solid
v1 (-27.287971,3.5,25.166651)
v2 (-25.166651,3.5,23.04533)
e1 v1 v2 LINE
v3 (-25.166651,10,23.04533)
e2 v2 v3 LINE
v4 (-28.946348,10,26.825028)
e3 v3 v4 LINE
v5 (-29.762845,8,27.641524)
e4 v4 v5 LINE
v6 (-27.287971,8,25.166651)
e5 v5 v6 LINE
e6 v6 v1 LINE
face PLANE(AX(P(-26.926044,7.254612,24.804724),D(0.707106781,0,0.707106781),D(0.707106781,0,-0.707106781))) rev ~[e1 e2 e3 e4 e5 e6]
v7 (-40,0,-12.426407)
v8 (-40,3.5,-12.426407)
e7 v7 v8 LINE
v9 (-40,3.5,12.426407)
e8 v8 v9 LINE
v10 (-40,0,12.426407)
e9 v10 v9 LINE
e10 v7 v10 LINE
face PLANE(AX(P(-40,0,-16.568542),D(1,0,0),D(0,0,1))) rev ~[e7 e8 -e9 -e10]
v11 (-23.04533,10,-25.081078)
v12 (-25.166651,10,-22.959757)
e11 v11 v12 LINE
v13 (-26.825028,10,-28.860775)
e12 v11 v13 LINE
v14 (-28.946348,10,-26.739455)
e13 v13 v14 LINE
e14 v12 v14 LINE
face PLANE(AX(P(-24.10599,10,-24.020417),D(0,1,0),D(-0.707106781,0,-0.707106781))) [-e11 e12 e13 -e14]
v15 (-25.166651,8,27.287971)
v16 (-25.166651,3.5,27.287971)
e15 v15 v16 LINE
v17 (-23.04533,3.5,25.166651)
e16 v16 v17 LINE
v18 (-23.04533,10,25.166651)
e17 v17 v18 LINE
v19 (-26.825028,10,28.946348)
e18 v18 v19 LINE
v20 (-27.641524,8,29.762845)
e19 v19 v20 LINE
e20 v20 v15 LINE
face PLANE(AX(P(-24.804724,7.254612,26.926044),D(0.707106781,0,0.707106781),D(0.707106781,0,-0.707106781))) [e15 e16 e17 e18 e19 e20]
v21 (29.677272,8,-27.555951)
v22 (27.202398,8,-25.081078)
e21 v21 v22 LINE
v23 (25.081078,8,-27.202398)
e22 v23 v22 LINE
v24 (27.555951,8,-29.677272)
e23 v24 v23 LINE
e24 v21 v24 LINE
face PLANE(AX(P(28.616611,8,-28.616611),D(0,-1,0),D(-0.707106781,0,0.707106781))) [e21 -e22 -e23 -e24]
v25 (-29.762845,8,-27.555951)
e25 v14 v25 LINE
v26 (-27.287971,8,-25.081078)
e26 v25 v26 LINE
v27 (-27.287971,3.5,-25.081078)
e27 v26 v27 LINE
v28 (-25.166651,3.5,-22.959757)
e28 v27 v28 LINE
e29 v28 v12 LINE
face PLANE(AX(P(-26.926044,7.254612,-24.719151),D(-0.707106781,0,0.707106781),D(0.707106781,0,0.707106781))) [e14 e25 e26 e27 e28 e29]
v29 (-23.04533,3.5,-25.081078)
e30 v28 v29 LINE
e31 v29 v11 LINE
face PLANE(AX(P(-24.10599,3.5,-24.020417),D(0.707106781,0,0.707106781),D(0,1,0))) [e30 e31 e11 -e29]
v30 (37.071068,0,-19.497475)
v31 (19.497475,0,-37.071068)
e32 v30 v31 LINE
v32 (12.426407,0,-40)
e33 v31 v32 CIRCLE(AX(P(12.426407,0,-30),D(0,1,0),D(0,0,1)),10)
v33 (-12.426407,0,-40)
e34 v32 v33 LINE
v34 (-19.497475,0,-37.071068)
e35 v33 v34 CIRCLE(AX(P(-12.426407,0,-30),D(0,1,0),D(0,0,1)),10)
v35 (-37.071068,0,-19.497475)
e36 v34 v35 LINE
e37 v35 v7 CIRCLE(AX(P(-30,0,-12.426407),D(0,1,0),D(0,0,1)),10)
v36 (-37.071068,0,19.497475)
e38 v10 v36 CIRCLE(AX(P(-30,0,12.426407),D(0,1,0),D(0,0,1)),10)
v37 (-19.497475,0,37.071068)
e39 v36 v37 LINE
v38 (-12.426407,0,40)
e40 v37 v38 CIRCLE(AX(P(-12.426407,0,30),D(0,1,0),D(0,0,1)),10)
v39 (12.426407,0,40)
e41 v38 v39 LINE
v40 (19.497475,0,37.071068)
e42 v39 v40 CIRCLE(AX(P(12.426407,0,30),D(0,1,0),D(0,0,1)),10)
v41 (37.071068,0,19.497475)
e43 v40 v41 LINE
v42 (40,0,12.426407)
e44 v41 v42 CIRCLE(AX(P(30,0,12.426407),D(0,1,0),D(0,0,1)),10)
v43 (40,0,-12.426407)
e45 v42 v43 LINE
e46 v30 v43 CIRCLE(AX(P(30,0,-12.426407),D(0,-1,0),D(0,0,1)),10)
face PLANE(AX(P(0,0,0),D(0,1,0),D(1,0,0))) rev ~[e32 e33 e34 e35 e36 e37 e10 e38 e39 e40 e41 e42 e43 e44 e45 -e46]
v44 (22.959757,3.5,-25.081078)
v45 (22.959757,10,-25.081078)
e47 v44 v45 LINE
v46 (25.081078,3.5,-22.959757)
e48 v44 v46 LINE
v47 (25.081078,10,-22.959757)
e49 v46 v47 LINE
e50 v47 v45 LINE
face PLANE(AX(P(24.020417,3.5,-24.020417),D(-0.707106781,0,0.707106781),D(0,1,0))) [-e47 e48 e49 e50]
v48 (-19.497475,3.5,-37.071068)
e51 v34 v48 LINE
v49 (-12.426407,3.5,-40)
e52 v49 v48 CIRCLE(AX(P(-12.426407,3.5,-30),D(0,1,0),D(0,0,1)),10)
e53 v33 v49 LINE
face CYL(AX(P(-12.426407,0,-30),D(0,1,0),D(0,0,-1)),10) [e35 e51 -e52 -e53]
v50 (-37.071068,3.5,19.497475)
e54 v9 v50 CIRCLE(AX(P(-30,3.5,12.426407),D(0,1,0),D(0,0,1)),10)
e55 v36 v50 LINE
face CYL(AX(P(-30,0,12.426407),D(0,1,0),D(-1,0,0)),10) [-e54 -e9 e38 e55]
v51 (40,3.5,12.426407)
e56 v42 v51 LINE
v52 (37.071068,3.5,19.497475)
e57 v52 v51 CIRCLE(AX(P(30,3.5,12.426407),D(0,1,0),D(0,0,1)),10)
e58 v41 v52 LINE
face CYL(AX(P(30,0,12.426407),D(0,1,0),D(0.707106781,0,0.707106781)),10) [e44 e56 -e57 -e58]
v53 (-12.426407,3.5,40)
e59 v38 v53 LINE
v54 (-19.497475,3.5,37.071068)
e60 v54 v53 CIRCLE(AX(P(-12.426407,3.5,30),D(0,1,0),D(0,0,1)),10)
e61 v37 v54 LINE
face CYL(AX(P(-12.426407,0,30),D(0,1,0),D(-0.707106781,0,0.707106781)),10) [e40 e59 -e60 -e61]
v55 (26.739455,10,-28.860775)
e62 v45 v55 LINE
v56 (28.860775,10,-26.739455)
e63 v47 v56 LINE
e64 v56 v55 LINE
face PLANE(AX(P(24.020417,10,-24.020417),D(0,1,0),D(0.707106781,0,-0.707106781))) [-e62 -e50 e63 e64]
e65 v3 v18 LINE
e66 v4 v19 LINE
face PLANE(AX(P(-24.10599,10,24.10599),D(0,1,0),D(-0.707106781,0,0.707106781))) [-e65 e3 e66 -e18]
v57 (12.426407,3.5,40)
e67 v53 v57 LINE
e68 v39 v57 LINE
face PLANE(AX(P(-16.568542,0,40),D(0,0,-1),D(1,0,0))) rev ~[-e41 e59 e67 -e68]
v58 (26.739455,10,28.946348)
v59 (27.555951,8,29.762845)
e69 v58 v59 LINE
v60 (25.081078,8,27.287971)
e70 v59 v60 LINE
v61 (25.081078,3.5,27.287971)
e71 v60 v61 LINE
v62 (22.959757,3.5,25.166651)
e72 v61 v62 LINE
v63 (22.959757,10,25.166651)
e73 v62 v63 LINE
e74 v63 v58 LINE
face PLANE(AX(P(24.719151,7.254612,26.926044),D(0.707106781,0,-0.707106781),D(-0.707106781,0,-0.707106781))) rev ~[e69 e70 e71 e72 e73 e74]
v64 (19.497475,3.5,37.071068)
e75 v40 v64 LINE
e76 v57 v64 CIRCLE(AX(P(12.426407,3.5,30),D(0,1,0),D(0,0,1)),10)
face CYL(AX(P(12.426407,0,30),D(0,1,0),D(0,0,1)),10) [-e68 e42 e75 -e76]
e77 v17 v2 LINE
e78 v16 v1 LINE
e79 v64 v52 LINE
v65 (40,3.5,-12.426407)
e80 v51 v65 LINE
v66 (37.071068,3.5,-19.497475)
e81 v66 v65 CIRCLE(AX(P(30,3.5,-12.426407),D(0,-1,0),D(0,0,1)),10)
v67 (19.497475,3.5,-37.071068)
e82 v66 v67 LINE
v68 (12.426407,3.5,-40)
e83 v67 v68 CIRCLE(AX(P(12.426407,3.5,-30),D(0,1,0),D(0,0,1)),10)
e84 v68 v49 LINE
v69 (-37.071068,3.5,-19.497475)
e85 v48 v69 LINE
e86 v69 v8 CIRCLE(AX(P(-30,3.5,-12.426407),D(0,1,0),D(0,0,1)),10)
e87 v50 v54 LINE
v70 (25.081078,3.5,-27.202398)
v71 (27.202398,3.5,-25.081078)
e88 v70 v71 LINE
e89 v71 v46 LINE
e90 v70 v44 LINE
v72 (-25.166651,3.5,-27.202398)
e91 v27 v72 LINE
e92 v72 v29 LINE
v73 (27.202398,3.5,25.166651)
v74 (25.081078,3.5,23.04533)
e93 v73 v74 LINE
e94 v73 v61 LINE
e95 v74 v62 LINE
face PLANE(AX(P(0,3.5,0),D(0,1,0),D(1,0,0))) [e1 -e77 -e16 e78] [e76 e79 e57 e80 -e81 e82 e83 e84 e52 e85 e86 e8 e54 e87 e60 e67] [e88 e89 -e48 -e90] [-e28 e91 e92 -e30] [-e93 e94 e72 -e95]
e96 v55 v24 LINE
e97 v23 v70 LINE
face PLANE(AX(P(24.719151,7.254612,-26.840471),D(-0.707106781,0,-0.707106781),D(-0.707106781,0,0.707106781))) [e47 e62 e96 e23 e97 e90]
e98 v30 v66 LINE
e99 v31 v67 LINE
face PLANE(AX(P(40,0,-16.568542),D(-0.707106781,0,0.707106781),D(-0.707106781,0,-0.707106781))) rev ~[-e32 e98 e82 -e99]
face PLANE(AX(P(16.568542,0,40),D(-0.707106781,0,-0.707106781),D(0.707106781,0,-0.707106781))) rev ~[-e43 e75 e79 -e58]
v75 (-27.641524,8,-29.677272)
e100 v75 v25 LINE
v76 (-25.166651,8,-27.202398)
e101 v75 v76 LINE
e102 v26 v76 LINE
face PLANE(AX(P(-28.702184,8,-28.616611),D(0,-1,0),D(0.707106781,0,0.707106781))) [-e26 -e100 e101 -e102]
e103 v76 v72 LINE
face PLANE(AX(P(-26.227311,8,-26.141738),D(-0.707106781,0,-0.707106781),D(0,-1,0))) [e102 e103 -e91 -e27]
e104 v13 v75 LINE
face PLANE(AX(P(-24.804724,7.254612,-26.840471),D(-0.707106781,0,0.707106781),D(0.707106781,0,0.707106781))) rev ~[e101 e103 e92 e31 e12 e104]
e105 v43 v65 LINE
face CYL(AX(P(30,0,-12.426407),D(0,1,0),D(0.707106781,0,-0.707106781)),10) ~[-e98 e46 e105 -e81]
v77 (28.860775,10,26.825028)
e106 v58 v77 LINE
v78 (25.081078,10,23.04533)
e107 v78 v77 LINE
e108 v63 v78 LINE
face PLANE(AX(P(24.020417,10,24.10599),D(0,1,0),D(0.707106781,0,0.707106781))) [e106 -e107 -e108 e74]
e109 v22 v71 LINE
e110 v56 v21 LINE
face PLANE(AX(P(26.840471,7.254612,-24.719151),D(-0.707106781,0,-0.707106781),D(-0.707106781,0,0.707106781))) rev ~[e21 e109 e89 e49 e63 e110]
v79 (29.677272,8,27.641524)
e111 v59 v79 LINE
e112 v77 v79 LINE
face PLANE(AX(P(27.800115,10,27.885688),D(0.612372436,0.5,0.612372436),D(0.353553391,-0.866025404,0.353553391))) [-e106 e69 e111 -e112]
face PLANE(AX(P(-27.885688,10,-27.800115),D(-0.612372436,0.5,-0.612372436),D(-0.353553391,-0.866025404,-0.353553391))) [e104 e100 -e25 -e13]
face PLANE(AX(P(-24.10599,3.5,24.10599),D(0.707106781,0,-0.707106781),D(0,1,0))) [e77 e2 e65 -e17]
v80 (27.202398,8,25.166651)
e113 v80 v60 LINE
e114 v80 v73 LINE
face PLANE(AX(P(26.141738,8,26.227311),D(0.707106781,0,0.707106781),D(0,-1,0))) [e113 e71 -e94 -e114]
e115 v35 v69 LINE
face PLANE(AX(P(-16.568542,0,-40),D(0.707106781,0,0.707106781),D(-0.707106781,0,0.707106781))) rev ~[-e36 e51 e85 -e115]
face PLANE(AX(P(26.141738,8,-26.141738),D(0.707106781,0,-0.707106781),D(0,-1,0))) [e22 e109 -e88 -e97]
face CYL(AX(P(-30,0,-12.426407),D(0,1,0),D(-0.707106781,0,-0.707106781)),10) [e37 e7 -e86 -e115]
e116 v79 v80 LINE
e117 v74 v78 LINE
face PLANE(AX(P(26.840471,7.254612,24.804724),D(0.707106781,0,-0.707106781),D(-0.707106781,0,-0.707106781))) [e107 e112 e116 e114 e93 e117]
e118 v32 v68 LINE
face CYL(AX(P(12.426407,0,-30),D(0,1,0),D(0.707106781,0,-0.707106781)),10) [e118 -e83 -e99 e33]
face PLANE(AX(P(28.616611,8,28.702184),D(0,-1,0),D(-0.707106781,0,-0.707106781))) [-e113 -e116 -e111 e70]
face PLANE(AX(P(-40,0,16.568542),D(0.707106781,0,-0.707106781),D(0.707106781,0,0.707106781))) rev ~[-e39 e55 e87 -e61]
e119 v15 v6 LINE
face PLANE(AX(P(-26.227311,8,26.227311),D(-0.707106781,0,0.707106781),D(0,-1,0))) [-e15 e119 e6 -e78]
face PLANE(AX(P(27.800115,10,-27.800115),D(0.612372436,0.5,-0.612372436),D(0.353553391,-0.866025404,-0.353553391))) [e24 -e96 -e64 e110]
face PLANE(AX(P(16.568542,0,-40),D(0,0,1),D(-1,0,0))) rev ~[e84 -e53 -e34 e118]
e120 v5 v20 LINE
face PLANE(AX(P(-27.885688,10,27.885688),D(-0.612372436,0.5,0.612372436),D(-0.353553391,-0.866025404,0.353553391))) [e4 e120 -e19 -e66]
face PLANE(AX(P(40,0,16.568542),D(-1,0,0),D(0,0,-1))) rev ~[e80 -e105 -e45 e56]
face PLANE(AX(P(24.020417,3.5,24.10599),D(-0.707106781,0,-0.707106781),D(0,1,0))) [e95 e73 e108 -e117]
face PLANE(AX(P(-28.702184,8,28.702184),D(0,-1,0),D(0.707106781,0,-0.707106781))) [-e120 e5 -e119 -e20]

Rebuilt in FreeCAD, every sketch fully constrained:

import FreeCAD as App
import Part
import Sketcher
from FreeCAD import Vector
Q = App.Units.Quantity


def edges_at(feature, points):
    """Names of the edges that pass closest to the given points."""
    edges = feature.Shape.Edges
    near = lambda p: min(range(len(edges)), key=lambda i: edges[i].distToShape(Part.Vertex(*p))[0])
    return sorted({f"Edge{near(p) + 1}" for p in points})


def add_polygon(sketch, points):
    """Adds a closed chain of lines whose ends are joined by coincident constraints."""
    first, n = sketch.GeometryCount, len(points)
    for a, b in zip(points, points[1:] + points[:1]):
        sketch.addGeometry(Part.LineSegment(App.Vector(*a, 0), App.Vector(*b, 0)), False)
    for i in range(n):
        sketch.addConstraint(Sketcher.Constraint("Coincident", first + i, 2, first + (i + 1) % n, 1))

doc = App.newDocument("Part")
body = doc.addObject("PartDesign::Body", "Body")

# Sketch on XZ plane
sketch1 = body.newObject("Sketcher::SketchObject", "Sketch")
sketch1.AttachmentSupport = (doc.getObject("XZ_Plane"), [""])
sketch1.MapMode = "FlatFace"
add_polygon(sketch1, [(40, -16.568542), (16.568542, -40), (-16.568542, -40), (-40, -16.568542), (-40, 16.568542), (-16.568542, 40), (16.568542, 40), (40, 16.568542)])  # lines 0-7
sketch1.addConstraint([
    Sketcher.Constraint("Horizontal", 1),
    Sketcher.Constraint("Vertical", 3),
    Sketcher.Constraint("Horizontal", 5),
    Sketcher.Constraint("Vertical", 7),
    Sketcher.Constraint("Symmetric", 0, 2, 4, 2, -1, 1),
    Sketcher.Constraint("Symmetric", 2, 2, 6, 2, -1, 1),
    Sketcher.Constraint("Perpendicular", 0, 2),
    Sketcher.Constraint("Perpendicular", 2, 4),
    Sketcher.Constraint("Perpendicular", 4, 6),
    Sketcher.Constraint("Horizontal", 3, 2, 6, 2),
    Sketcher.Constraint("Vertical", 1, 2, 4, 2),
    Sketcher.Constraint("Equal", 5, 3),
    Sketcher.Constraint("DistanceY", 0, 2, -1, 1, Q("40 mm")),
    Sketcher.Constraint("DistanceX", 1, 2, 1, 1, Q("33.137085 mm")),
])
pad1 = body.newObject("PartDesign::Pad", "Pad")
pad1.Profile = sketch1
pad1.Length = 3.5
pad1.Reversed = True
doc.recompute()

fillet = body.newObject("PartDesign::Fillet", "Fillet")
fillet.Base = (pad1, edges_at(pad1, [
    (40, 1.75, 16.569),
    (16.569, 1.75, 40),
    (-16.569, 1.75, 40),
    (-40, 1.75, 16.569),
    (-40, 1.75, -16.569),
    (-16.569, 1.75, -40),
    (16.569, 1.75, -40),
    (40, 1.75, -16.569),
]))
fillet.Radius = 10

# Sketch on an angled plane
sketch2 = body.newObject("Sketcher::SketchObject", "Sketch001")
sketch2.Placement = App.Placement(Vector(0, 0, 0), App.Rotation(Vector(-0.707106781, 0, 0.707106781), Vector(0, 0.999999999, 0), Vector(-0.707106781, 0, -0.707106781), "ZXY"))
add_polygon(sketch2, [(-33.97, 3.5), (-33.97, 10), (-39.315299, 10), (-40.47, 8), (-36.97, 8), (-36.97, 3.5)])  # lines 0-5
sketch2.addConstraint([
    Sketcher.Constraint("Vertical", 0),
    Sketcher.Constraint("Horizontal", 1),
    Sketcher.Constraint("Horizontal", 3),
    Sketcher.Constraint("Vertical", 4),
    Sketcher.Constraint("Horizontal", 5),
    Sketcher.Constraint("DistanceX", 5, 1, 5, 2, Q("3 mm")),
    Sketcher.Constraint("Angle", 2, Q("-120 deg")),
    Sketcher.Constraint("DistanceX", 3, 1, 3, 2, Q("3.5 mm")),
    Sketcher.Constraint("DistanceY", 0, 1, 0, 2, Q("6.5 mm")),
    Sketcher.Constraint("DistanceY", 4, 2, 4, 1, Q("4.5 mm")),
    Sketcher.Constraint("DistanceY", -1, 1, 0, 2, Q("10 mm")),
    Sketcher.Constraint("DistanceX", 0, 2, -1, 1, Q("33.97 mm")),
])
pad2 = body.newObject("PartDesign::Pad", "Pad001")
pad2.Profile = sketch2
pad2.Length = 3
pad2.Midplane = True
doc.recompute()

datumline = body.newObject("PartDesign::Line", "DatumLine")
datumline.Placement = App.Placement(Vector(-0.042787, 0, 0.042787), App.Rotation(Vector(0, 0, 1), Vector(0, 1, 0)))
polarpattern = body.newObject("PartDesign::PolarPattern", "PolarPattern")
polarpattern.Originals = [pad2]
polarpattern.Axis = (datumline, [""])
polarpattern.Angle = 360
polarpattern.Occurrences = 4
body.Tip = polarpattern

doc.recompute()
